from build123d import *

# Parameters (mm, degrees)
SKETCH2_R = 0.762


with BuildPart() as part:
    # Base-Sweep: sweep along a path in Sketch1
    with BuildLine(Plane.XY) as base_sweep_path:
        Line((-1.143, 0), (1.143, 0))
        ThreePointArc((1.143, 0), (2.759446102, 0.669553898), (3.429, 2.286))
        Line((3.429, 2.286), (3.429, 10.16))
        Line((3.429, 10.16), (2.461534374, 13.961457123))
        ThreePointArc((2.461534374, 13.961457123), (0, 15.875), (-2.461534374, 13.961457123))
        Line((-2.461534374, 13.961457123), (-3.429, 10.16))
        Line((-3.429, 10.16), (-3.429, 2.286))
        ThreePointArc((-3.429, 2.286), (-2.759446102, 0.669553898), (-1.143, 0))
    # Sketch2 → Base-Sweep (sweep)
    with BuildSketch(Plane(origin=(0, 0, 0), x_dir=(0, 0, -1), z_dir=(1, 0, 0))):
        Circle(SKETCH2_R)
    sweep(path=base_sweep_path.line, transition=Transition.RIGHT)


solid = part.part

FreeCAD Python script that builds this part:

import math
import FreeCAD as App
import Part
import Sketcher
Q = App.Units.Quantity

doc = App.newDocument("Part")
body = doc.addObject("PartDesign::Body", "Body")

# Sketch on YZ plane
sketch1 = body.newObject("Sketcher::SketchObject", "Sketch")
sketch1.AttachmentSupport = (doc.getObject("YZ_Plane"), [""])
sketch1.MapMode = "FlatFace"
sketch1.addGeometry(Part.Circle(App.Vector(0, 0, 0), App.Vector(0, 0, 1), 0.8), False)
sketch1.addConstraint(Sketcher.Constraint("Coincident", 0, 3, -1, 1))
sketch1.addConstraint(Sketcher.Constraint("Diameter", 0, Q("0.06 in")))

# Sketch on XY plane
sketch2 = body.newObject("Sketcher::SketchObject", "Sketch001")
sketch2.AttachmentSupport = (doc.getObject("XY_Plane"), [""])
sketch2.MapMode = "FlatFace"
sketch2.addGeometry(Part.LineSegment(App.Vector(-1.1, 0, 0), App.Vector(1.1, 0, 0)), False)
sketch2.addGeometry(Part.ArcOfCircle(Part.Circle(App.Vector(1.1, 2.3, 0), App.Vector(0, 0, 1), 2.3), math.radians(-90), math.radians(0)), False)
sketch2.addGeometry(Part.LineSegment(App.Vector(3.4, 2.3, 0), App.Vector(3.4, 10.2, 0)), False)
sketch2.addGeometry(Part.LineSegment(App.Vector(3.4, 10.2, 0), App.Vector(2.5, 14, 0)), False)
sketch2.addGeometry(Part.ArcOfCircle(Part.Circle(App.Vector(0, 13.3, 0), App.Vector(0, 0, 1), 2.5), math.radians(14), math.radians(166)), False)
sketch2.addGeometry(Part.LineSegment(App.Vector(-2.5, 14, 0), App.Vector(-3.4, 10.2, 0)), False)
sketch2.addGeometry(Part.LineSegment(App.Vector(-3.4, 10.2, 0), App.Vector(-3.4, 2.3, 0)), False)
sketch2.addGeometry(Part.ArcOfCircle(Part.Circle(App.Vector(-1.1, 2.3, 0), App.Vector(0, 0, 1), 2.3), math.radians(180), math.radians(270)), False)
sketch2.addConstraint(Sketcher.Constraint("Tangent", 0, 2, 1, 1))
sketch2.addConstraint(Sketcher.Constraint("Tangent", 1, 2, 2, 1))
sketch2.addConstraint(Sketcher.Constraint("Coincident", 2, 2, 3, 1))
sketch2.addConstraint(Sketcher.Constraint("Tangent", 3, 2, 4, 1))
sketch2.addConstraint(Sketcher.Constraint("Tangent", 4, 2, 5, 1))
sketch2.addConstraint(Sketcher.Constraint("Coincident", 5, 2, 6, 1))
sketch2.addConstraint(Sketcher.Constraint("Tangent", 6, 2, 7, 1))
sketch2.addConstraint(Sketcher.Constraint("Tangent", 7, 2, 0, 1))
sketch2.addConstraint(Sketcher.Constraint("Horizontal", 0))
sketch2.addConstraint(Sketcher.Constraint("Vertical", 2))
sketch2.addConstraint(Sketcher.Constraint("Vertical", 6))
sketch2.addConstraint(Sketcher.Constraint("Equal", 1, 7))
sketch2.addConstraint(Sketcher.Constraint("Symmetric", 0, 2, 7, 2, -1, 1))
sketch2.addConstraint(Sketcher.Constraint("Symmetric", 3, 2, 4, 2, -2))
sketch2.addConstraint(Sketcher.Constraint("Radius", 4, Q("0.1 in")))
sketch2.addConstraint(Sketcher.Constraint("Radius", 1, Q("0.09 in")))
sketch2.addConstraint(Sketcher.Constraint("DistanceX", 0, 1, 0, 2, Q("0.09 in")))
sketch2.addConstraint(Sketcher.Constraint("DistanceY", 2, 1, 2, 2, Q("0.31 in")))
sketch2.addConstraint(Sketcher.Constraint("DistanceY", -1, 1, 4, 3, Q("0.525 in")))
doc.recompute()

additivepipe = body.newObject("PartDesign::AdditivePipe", "AdditivePipe")
additivepipe.Profile = sketch1
additivepipe.Spine = (sketch2, ["Edge1", "Edge2", "Edge3", "Edge4", "Edge5", "Edge6", "Edge7", "Edge8"])
additivepipe.Transition = "Right corner"

doc.recompute()
